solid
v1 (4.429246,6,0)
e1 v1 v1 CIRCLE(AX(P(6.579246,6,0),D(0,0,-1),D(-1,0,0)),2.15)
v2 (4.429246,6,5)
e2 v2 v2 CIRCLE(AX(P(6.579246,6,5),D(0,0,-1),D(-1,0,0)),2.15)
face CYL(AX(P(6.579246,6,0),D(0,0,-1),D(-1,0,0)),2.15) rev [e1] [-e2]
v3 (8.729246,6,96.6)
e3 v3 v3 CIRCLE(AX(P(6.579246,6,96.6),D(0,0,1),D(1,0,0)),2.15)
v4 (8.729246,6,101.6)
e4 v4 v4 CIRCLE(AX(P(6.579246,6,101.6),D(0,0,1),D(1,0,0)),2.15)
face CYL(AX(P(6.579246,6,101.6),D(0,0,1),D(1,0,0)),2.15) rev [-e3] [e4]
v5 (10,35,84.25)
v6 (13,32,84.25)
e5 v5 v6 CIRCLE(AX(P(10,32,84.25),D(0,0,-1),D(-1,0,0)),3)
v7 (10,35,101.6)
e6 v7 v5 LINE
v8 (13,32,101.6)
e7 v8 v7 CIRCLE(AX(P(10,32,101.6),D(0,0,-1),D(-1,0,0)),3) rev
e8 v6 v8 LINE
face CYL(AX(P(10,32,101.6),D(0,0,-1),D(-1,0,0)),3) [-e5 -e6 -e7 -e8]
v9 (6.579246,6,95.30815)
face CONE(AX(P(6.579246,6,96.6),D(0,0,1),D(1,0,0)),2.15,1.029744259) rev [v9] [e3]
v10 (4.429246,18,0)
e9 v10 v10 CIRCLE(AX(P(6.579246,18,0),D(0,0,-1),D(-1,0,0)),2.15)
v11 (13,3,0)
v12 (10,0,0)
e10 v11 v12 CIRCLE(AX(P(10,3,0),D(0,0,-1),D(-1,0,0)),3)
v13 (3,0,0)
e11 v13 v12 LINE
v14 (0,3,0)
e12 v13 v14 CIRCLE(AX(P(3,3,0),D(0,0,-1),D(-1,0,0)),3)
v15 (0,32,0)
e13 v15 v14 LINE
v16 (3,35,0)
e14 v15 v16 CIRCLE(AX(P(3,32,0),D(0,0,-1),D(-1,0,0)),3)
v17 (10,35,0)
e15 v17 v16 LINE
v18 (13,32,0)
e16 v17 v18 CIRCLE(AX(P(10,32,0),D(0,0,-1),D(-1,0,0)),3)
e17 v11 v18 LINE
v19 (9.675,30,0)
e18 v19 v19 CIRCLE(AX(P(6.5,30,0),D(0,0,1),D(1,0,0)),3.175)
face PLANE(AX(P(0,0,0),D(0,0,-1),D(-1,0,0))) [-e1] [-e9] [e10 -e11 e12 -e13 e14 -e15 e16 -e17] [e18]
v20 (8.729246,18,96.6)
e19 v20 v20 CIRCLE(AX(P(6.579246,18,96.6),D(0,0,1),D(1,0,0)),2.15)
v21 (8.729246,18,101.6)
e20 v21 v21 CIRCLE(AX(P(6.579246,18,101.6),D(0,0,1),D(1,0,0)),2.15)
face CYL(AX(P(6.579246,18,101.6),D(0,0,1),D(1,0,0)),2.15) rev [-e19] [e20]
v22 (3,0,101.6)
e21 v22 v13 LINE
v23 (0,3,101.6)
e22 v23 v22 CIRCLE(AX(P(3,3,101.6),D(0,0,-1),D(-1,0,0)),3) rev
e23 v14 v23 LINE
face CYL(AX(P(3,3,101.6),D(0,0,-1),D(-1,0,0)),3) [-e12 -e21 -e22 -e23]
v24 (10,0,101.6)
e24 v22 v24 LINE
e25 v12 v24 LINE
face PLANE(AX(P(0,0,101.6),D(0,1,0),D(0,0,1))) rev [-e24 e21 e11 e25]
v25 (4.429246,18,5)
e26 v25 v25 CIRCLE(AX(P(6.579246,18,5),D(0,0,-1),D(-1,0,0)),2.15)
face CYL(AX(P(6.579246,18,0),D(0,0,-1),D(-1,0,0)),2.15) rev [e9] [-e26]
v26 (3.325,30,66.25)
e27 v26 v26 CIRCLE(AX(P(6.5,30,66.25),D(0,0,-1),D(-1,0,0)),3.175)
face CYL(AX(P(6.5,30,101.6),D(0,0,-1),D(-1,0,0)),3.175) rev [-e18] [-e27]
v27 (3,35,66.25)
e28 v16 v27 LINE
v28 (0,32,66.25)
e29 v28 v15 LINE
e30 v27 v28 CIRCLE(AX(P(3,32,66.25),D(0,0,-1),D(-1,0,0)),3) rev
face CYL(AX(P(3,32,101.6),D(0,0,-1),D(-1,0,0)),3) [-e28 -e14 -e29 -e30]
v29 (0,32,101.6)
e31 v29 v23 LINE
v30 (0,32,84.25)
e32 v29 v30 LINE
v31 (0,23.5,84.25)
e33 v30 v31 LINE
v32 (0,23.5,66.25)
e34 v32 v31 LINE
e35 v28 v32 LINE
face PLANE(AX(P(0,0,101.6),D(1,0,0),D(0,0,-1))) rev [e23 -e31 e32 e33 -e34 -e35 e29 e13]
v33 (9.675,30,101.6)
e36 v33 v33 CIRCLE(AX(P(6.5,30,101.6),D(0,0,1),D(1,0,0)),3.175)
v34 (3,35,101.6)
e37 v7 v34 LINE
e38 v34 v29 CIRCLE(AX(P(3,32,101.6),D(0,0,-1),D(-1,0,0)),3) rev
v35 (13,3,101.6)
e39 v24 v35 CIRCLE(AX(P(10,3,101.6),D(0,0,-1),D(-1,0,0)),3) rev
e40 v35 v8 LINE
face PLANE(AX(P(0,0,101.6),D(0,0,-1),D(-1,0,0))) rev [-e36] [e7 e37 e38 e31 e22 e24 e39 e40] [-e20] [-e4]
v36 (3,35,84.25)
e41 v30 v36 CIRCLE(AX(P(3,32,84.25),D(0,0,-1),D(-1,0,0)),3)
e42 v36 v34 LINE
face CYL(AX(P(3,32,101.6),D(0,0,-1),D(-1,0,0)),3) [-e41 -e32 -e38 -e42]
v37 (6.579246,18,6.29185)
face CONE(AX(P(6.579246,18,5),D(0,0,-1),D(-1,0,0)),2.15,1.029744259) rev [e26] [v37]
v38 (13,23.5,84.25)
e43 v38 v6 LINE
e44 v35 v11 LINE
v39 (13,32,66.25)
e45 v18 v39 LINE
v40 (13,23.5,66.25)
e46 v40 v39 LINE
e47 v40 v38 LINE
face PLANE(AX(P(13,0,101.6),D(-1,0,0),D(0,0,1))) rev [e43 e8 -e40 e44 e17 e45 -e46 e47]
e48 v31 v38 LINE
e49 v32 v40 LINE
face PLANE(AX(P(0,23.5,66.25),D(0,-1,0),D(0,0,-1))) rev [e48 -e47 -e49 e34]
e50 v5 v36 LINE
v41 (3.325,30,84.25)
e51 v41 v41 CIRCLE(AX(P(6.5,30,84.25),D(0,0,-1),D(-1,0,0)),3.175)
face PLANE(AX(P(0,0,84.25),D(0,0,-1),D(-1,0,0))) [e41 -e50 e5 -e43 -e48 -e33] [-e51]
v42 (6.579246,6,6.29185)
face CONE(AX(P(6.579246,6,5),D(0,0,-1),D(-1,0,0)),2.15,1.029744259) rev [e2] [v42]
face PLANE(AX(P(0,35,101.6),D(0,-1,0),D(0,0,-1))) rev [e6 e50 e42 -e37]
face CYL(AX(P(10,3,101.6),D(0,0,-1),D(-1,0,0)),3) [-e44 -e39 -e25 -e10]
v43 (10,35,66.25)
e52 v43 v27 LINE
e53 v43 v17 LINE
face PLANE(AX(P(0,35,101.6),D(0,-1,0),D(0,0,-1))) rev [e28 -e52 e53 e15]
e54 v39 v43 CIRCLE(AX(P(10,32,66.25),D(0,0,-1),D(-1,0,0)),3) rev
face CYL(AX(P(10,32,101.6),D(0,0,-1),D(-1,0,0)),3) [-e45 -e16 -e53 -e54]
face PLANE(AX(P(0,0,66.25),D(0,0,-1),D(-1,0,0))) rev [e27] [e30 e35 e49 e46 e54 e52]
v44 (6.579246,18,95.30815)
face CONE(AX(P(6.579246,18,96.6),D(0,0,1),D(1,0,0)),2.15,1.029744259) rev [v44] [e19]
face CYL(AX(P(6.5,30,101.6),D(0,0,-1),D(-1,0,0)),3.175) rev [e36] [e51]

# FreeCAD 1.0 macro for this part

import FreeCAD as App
import Part
import Sketcher
from FreeCAD import Vector


def edges_at(feature, points):
    """Names of the edges that pass closest to the given points."""
    edges = feature.Shape.Edges
    near = lambda p: min(range(len(edges)), key=lambda i: edges[i].distToShape(Part.Vertex(*p))[0])
    return sorted({f"Edge{near(p) + 1}" for p in points})

doc = App.newDocument("Part")
params = doc.addObject("Spreadsheet::Sheet", "Params")
for row, (alias, value) in enumerate([
    ("sketch1_diameter", "6.35 mm"),
    ("sketch1_width", "13 mm"),
    ("sketch1_height", "35 mm"),
    ("pad1_length", "101.6 mm"),
    ("sketch2_width", "13 mm"),
    ("sketch2_height", "11.5 mm"),
    ("pocket1_length", "18 mm"),
    ("sketch3_diameter", "4.3 mm"),
    ("hole_diameter", "4.3 mm"),
    ("hole_depth", "5 mm"),
    ("sketch4_diameter", "4.3 mm"),
    ("hole2_diameter", "4.3 mm"),
    ("hole2_depth", "5 mm"),
    ("fillet_radius", "3 mm"),
], start=1):
    params.set(f"A{row}", alias)
    params.set(f"B{row}", "=" + value)
    params.setAlias(f"B{row}", alias)

body = doc.addObject("PartDesign::Body", "Body")

# Sketch on XY plane
sketch1 = body.newObject("Sketcher::SketchObject", "Sketch")
sketch1.AttachmentSupport = (doc.getObject("XY_Plane"), [""])
sketch1.MapMode = "FlatFace"
sketch1.addGeometry(Part.LineSegment(Vector(0, 35, 0), Vector(0, 0, 0)), False)
sketch1.addGeometry(Part.LineSegment(Vector(0, 0, 0), Vector(13, 0, 0)), False)
sketch1.addGeometry(Part.LineSegment(Vector(13, 0, 0), Vector(13, 35, 0)), False)
sketch1.addGeometry(Part.LineSegment(Vector(13, 35, 0), Vector(0, 35, 0)), False)
sketch1.addGeometry(Part.Circle(Vector(6.5, 30, 0), Vector(0, 0, 1), 3.2), False)
sketch1.addConstraint(Sketcher.Constraint("Coincident", 0, 2, 1, 1))
sketch1.addConstraint(Sketcher.Constraint("Coincident", 1, 2, 2, 1))
sketch1.addConstraint(Sketcher.Constraint("Coincident", 2, 2, 3, 1))
sketch1.addConstraint(Sketcher.Constraint("Coincident", 3, 2, 0, 1))
sketch1.addConstraint(Sketcher.Constraint("Vertical", 0))
sketch1.addConstraint(Sketcher.Constraint("Horizontal", 1))
sketch1.addConstraint(Sketcher.Constraint("Vertical", 2))
sketch1.addConstraint(Sketcher.Constraint("Horizontal", 3))
sketch1.addConstraint(Sketcher.Constraint("Coincident", 0, 2, -1, 1))
sketch1.addConstraint(Sketcher.Constraint("Diameter", 4, 6.35))
sketch1.addConstraint(Sketcher.Constraint("DistanceX", 1, 1, 1, 2, 13.0))
sketch1.addConstraint(Sketcher.Constraint("DistanceY", 0, 2, 0, 1, 35.0))
sketch1.addConstraint(Sketcher.Constraint("DistanceY", -1, 1, 4, 3, 30.0))
sketch1.addConstraint(Sketcher.Constraint("DistanceX", -1, 1, 4, 3, 6.5))
sketch1.setExpression("Constraints[9]", "Params.sketch1_diameter")
sketch1.setExpression("Constraints[10]", "Params.sketch1_width")
sketch1.setExpression("Constraints[11]", "Params.sketch1_height")
pad1 = body.newObject("PartDesign::Pad", "Pad")
pad1.Profile = sketch1
pad1.setExpression("Length", "Params.pad1_length")

# Sketch on XY plane
sketch2 = body.newObject("Sketcher::SketchObject", "Sketch001")
sketch2.AttachmentSupport = (doc.getObject("XY_Plane"), [""])
sketch2.MapMode = "FlatFace"
sketch2.AttachmentOffset = App.Placement(Vector(0, 0, 75.25), App.Rotation())
sketch2.addGeometry(Part.LineSegment(Vector(0, 35, 0), Vector(0, 24, 0)), False)
sketch2.addGeometry(Part.LineSegment(Vector(0, 24, 0), Vector(13, 24, 0)), False)
sketch2.addGeometry(Part.LineSegment(Vector(13, 24, 0), Vector(13, 35, 0)), False)
sketch2.addGeometry(Part.LineSegment(Vector(13, 35, 0), Vector(0, 35, 0)), False)
sketch2.addConstraint(Sketcher.Constraint("Coincident", 0, 2, 1, 1))
sketch2.addConstraint(Sketcher.Constraint("Coincident", 1, 2, 2, 1))
sketch2.addConstraint(Sketcher.Constraint("Coincident", 2, 2, 3, 1))
sketch2.addConstraint(Sketcher.Constraint("Coincident", 3, 2, 0, 1))
sketch2.addConstraint(Sketcher.Constraint("Vertical", 0))
sketch2.addConstraint(Sketcher.Constraint("Horizontal", 1))
sketch2.addConstraint(Sketcher.Constraint("Vertical", 2))
sketch2.addConstraint(Sketcher.Constraint("Horizontal", 3))
sketch2.addConstraint(Sketcher.Constraint("PointOnObject", 0, 2, -2))
sketch2.addConstraint(Sketcher.Constraint("DistanceX", 1, 1, 1, 2, 13.0))
sketch2.addConstraint(Sketcher.Constraint("DistanceY", 0, 2, 0, 1, 11.5))
sketch2.addConstraint(Sketcher.Constraint("DistanceY", -1, 1, 2, 2, 35.0))
sketch2.setExpression("Constraints[9]", "Params.sketch2_width")
sketch2.setExpression("Constraints[10]", "Params.sketch2_height")
pocket1 = body.newObject("PartDesign::Pocket", "Pocket")
pocket1.Profile = sketch2
pocket1.setExpression("Length", "Params.pocket1_length")
pocket1.Midplane = True

# Sketch on XY plane
sketch3 = body.newObject("Sketcher::SketchObject", "Sketch002")
sketch3.AttachmentSupport = (doc.getObject("XY_Plane"), [""])
sketch3.MapMode = "FlatFace"
sketch3.addGeometry(Part.Circle(Vector(6.6, 18, 0), Vector(0, 0, 1), 2.1), False)
sketch3.addGeometry(Part.Circle(Vector(6.6, 6, 0), Vector(0, 0, 1), 2.1), False)
sketch3.addConstraint(Sketcher.Constraint("Equal", 0, 1))
sketch3.addConstraint(Sketcher.Constraint("Vertical", 0, 3, 1, 3))
sketch3.addConstraint(Sketcher.Constraint("Diameter", 0, 4.3))
sketch3.addConstraint(Sketcher.Constraint("DistanceY", -1, 1, 0, 3, 18.0))
sketch3.addConstraint(Sketcher.Constraint("DistanceY", -1, 1, 1, 3, 6.0))
sketch3.addConstraint(Sketcher.Constraint("DistanceX", -1, 1, 0, 3, 6.579246))
sketch3.setExpression("Constraints[2]", "Params.sketch3_diameter")
doc.recompute()
hole = body.newObject("PartDesign::Hole", "Hole")
hole.Profile = sketch3
hole.ThreadType = "None"
hole.setExpression("Diameter", "Params.hole_diameter")
hole.DepthType = "Dimension"
hole.setExpression("Depth", "Params.hole_depth")
hole.DrillPoint = "Angled"
hole.DrillPointAngle = 118
hole.Reversed = True

# Sketch on XY plane
sketch4 = body.newObject("Sketcher::SketchObject", "Sketch003")
sketch4.AttachmentSupport = (doc.getObject("XY_Plane"), [""])
sketch4.MapMode = "FlatFace"
sketch4.AttachmentOffset = App.Placement(Vector(0, 0, 101.6), App.Rotation())
sketch4.addGeometry(Part.Circle(Vector(6.6, 18, 0), Vector(0, 0, 1), 2.1), False)
sketch4.addGeometry(Part.Circle(Vector(6.6, 6, 0), Vector(0, 0, 1), 2.1), False)
sketch4.addConstraint(Sketcher.Constraint("Equal", 0, 1))
sketch4.addConstraint(Sketcher.Constraint("Vertical", 0, 3, 1, 3))
sketch4.addConstraint(Sketcher.Constraint("Diameter", 0, 4.3))
sketch4.addConstraint(Sketcher.Constraint("DistanceY", -1, 1, 0, 3, 18.0))
sketch4.addConstraint(Sketcher.Constraint("DistanceY", -1, 1, 1, 3, 6.0))
sketch4.addConstraint(Sketcher.Constraint("DistanceX", -1, 1, 0, 3, 6.579246))
sketch4.setExpression("Constraints[2]", "Params.sketch4_diameter")
doc.recompute()
hole2 = body.newObject("PartDesign::Hole", "Hole001")
hole2.Profile = sketch4
hole2.ThreadType = "None"
hole2.setExpression("Diameter", "Params.hole2_diameter")
hole2.DepthType = "Dimension"
hole2.setExpression("Depth", "Params.hole2_depth")
hole2.DrillPoint = "Angled"
hole2.DrillPointAngle = 118
doc.recompute()

fillet = body.newObject("PartDesign::Fillet", "Fillet")
fillet.Base = (hole2, edges_at(hole2, [
    (0, 35, 33.125),
    (13, 35, 33.125),
    (0, 35, 92.925),
    (13, 35, 92.925),
    (13, 0, 50.8),
    (0, 0, 50.8),
]))
fillet.setExpression("Radius", "Params.fillet_radius")

doc.recompute()
